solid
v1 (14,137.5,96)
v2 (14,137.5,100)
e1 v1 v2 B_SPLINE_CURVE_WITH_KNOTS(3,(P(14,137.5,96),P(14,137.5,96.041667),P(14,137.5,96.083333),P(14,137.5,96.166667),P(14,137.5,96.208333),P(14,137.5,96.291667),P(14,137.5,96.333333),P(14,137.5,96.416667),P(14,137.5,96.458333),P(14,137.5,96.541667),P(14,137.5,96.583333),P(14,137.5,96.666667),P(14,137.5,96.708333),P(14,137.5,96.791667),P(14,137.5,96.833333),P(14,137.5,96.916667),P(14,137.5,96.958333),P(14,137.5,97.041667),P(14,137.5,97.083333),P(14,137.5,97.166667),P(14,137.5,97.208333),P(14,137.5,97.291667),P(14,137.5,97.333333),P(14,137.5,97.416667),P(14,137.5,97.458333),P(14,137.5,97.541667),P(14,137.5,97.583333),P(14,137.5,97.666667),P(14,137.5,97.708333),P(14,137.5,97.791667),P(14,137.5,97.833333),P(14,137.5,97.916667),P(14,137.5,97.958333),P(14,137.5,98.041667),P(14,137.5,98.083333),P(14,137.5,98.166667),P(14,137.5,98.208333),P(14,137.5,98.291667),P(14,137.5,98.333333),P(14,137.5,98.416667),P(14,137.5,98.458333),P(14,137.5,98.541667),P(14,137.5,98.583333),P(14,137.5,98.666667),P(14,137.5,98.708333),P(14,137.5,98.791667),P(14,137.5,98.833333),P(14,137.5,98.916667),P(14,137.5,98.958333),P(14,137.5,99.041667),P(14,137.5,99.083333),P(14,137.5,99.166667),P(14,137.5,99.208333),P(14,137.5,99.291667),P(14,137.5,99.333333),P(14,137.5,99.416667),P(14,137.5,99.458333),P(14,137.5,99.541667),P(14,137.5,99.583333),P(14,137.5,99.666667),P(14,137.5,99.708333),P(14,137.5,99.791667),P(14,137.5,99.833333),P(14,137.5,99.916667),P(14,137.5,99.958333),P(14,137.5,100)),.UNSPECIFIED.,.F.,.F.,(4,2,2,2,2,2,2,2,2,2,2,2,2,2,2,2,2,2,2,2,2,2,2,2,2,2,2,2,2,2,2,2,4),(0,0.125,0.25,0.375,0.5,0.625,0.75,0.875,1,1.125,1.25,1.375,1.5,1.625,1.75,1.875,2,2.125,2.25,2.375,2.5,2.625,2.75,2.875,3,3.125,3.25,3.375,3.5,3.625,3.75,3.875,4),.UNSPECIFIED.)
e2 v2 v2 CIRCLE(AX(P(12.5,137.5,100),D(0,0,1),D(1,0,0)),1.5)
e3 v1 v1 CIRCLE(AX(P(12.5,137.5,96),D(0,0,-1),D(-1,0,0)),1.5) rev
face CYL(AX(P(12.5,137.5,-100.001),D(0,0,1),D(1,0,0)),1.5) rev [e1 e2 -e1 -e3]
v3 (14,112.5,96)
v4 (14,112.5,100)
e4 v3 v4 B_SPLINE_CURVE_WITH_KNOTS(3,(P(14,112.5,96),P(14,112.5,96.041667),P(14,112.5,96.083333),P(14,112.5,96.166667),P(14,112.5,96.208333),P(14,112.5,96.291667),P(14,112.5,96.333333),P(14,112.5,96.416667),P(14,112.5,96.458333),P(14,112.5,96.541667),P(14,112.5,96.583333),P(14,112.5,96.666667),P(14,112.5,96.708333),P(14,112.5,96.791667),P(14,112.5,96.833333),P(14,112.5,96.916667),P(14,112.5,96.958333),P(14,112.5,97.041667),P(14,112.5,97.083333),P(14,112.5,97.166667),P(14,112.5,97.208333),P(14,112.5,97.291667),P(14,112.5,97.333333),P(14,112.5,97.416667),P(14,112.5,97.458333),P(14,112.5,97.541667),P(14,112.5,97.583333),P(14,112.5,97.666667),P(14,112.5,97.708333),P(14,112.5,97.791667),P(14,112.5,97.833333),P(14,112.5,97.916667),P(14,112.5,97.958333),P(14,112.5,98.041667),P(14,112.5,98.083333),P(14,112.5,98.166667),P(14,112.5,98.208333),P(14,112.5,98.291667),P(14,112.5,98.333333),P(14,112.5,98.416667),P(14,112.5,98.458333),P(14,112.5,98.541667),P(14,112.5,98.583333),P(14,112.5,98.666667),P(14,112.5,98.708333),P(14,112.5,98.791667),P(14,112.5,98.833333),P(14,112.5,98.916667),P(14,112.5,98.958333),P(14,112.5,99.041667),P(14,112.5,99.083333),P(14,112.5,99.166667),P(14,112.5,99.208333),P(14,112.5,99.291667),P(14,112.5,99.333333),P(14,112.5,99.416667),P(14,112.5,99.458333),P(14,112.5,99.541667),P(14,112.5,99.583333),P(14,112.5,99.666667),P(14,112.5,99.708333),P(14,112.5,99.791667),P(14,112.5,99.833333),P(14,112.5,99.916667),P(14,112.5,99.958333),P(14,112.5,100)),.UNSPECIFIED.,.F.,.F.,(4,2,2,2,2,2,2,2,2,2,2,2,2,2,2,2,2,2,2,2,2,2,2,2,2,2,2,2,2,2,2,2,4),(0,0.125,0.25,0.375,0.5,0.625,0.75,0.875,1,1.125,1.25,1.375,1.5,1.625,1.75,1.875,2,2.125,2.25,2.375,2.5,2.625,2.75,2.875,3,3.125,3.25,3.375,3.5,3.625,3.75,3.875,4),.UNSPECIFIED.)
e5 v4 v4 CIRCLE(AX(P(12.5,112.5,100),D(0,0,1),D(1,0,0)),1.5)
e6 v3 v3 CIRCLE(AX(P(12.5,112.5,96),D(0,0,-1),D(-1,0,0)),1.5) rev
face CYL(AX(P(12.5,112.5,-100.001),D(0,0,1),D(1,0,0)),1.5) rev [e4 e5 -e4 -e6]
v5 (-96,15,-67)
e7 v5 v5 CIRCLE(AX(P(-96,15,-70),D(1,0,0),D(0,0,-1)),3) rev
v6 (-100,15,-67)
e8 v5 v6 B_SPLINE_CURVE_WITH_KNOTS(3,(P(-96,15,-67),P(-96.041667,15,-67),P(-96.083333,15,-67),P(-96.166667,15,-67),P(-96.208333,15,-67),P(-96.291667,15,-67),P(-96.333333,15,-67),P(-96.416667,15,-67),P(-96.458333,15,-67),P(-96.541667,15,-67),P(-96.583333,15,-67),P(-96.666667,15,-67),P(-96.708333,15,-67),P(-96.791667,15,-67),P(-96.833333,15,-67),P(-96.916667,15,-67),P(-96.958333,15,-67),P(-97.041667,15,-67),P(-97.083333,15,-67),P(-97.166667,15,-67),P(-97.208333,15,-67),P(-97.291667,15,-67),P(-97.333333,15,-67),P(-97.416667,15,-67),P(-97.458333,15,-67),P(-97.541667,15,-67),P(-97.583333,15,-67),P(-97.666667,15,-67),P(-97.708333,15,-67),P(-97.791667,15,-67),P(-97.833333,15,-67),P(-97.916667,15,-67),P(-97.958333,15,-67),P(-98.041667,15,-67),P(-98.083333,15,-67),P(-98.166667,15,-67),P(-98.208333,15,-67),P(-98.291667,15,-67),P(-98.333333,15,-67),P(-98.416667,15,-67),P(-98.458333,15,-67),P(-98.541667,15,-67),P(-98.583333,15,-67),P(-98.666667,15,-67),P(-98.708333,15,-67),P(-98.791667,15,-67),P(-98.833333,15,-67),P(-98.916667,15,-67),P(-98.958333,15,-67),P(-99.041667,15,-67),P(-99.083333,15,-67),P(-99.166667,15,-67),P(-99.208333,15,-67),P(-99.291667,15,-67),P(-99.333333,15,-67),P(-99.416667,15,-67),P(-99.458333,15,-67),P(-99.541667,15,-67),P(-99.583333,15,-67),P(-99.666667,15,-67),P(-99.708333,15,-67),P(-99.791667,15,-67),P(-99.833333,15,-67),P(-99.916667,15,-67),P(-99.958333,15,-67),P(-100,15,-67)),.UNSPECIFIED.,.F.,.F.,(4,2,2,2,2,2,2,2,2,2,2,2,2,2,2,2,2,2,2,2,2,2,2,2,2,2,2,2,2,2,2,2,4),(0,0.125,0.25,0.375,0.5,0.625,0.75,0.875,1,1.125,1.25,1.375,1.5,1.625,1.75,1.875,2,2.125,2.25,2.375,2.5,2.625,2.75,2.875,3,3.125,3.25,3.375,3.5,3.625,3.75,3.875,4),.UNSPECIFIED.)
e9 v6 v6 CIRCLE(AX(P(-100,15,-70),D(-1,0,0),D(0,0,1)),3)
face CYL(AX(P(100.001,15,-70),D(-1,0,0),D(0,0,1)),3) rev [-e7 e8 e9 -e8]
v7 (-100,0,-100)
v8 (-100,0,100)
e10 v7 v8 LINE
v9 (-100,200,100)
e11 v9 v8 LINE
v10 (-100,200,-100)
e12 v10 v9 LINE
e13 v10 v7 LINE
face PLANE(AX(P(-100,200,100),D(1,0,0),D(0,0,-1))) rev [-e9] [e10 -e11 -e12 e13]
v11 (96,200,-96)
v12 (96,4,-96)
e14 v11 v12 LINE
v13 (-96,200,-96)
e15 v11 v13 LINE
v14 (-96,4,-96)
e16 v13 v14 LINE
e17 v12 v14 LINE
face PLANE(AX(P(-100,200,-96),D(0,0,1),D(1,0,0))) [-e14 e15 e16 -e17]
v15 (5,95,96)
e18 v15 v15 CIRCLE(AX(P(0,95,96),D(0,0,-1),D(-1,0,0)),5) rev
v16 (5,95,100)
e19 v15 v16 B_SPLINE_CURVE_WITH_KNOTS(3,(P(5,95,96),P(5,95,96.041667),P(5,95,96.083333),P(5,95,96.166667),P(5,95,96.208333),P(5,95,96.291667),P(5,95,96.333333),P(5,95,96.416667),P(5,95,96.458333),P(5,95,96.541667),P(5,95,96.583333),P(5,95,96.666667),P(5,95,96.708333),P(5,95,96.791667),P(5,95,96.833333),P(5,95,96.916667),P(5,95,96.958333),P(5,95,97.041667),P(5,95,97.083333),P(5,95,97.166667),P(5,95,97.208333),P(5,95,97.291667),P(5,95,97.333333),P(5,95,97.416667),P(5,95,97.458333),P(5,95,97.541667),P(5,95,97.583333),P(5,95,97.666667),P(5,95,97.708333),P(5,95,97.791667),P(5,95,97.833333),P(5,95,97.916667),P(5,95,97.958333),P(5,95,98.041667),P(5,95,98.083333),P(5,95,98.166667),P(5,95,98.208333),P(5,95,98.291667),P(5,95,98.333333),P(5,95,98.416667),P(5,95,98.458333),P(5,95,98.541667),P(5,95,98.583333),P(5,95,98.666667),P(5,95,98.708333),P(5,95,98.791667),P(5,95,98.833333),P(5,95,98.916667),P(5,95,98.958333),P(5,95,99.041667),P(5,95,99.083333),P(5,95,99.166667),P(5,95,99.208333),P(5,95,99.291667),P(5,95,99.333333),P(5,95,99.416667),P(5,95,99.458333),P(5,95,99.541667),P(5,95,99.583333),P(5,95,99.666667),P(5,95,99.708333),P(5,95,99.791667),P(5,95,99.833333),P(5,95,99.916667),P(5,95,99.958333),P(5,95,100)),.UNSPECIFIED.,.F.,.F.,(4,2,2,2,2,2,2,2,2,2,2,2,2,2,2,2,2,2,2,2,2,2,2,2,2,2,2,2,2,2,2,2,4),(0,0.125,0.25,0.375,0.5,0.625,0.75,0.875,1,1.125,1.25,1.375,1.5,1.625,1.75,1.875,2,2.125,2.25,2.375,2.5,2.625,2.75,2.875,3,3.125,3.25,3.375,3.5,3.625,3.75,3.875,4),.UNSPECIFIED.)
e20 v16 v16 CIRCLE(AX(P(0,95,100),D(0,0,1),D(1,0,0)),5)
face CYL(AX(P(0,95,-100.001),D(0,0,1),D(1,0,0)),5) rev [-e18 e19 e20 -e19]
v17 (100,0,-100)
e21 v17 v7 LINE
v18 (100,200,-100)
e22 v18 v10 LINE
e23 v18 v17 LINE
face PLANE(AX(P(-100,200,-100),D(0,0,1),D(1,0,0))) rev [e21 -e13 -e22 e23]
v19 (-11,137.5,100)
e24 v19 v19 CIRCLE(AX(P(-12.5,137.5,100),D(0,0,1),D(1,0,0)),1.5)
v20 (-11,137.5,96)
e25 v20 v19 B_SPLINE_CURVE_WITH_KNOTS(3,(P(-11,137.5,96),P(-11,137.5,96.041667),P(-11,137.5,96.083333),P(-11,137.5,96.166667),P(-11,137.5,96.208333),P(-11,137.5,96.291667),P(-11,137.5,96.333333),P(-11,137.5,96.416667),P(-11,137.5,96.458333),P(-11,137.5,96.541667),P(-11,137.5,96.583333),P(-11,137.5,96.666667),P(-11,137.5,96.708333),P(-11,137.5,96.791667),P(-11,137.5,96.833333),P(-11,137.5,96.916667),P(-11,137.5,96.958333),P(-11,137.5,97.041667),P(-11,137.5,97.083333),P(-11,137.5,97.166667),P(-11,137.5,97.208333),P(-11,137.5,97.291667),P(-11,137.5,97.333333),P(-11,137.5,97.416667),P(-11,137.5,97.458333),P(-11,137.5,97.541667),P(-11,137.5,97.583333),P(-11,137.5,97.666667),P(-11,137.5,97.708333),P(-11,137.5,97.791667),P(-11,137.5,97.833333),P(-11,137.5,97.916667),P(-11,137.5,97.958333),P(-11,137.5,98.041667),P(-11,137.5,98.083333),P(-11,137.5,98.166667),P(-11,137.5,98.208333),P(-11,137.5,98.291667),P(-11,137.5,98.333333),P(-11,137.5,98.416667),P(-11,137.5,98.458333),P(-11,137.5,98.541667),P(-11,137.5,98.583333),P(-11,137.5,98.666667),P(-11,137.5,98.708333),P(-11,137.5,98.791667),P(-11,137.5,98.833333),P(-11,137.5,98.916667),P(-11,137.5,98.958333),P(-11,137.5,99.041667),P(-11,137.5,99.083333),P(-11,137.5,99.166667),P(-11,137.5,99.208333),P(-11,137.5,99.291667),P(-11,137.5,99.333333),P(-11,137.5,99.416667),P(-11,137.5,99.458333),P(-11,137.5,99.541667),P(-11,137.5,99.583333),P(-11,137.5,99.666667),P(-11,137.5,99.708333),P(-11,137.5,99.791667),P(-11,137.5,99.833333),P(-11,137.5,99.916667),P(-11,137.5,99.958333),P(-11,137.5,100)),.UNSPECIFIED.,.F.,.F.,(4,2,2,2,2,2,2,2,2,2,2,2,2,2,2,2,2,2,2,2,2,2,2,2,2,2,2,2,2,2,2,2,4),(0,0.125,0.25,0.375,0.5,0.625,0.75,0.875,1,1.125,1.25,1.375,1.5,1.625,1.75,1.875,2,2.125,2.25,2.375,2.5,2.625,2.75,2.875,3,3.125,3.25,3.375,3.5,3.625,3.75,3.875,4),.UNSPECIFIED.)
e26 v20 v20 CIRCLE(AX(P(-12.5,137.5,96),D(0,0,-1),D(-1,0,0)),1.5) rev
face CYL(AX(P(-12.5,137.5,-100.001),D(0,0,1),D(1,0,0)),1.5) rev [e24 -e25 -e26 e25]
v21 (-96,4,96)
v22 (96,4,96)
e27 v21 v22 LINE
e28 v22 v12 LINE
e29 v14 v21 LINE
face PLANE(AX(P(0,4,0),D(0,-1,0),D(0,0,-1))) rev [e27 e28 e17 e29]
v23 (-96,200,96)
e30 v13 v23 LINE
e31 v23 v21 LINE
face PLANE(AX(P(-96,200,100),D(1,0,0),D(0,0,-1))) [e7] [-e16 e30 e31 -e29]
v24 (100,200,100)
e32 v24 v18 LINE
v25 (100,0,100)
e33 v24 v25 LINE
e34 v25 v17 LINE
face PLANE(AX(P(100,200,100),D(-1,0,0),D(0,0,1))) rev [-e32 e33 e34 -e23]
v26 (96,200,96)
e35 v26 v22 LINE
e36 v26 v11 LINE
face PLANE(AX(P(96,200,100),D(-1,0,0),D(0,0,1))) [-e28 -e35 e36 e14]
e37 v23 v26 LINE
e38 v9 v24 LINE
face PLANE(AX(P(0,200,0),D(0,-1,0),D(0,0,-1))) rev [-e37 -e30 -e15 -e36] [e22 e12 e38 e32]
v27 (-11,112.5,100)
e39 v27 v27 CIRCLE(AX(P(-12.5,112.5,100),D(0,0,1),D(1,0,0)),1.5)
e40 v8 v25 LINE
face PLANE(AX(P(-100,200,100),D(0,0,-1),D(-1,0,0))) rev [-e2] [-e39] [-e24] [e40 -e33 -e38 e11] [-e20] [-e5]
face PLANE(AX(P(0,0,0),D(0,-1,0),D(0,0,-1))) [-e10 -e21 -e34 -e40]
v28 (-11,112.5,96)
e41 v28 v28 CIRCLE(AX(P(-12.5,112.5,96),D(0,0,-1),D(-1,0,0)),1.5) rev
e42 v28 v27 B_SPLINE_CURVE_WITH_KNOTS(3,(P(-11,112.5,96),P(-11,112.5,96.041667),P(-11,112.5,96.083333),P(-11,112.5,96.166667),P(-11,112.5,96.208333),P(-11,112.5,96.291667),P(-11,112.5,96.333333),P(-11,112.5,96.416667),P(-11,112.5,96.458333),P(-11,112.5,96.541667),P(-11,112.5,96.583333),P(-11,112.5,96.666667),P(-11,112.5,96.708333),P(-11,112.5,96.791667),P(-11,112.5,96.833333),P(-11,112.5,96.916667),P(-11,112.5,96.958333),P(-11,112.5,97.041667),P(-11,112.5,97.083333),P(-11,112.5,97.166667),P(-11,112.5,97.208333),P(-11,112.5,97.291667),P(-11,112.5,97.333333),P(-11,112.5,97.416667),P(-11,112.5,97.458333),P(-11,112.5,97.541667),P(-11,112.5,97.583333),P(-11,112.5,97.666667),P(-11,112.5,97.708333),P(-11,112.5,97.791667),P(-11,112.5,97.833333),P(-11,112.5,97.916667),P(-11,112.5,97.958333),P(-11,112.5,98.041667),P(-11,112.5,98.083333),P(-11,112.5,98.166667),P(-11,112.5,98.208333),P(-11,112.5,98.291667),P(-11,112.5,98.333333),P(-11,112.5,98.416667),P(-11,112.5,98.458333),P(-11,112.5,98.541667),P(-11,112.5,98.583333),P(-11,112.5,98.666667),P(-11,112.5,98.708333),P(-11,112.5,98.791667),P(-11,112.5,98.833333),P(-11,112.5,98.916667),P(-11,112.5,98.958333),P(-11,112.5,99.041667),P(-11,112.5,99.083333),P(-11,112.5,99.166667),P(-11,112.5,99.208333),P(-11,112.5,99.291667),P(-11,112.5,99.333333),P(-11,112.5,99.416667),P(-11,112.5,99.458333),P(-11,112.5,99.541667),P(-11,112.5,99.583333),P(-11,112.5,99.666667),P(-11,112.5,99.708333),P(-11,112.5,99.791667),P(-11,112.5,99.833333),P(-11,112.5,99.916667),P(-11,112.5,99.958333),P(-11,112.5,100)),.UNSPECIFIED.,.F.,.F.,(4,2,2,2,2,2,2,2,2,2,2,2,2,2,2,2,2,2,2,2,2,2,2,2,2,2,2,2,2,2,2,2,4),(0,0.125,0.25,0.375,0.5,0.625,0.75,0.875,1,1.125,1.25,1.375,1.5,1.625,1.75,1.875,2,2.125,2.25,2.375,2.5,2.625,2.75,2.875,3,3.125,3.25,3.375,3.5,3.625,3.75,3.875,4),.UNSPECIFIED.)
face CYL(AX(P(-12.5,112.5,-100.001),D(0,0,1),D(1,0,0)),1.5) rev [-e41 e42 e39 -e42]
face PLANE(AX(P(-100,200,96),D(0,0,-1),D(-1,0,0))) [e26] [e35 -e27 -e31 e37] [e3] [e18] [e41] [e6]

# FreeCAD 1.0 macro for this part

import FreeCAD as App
import Part
import Sketcher

V = App.Vector


def faces_at(feature, points):
    """Names of the faces that lie closest to the given points."""
    faces = feature.Shape.Faces
    near = lambda p: min(range(len(faces)), key=lambda i: faces[i].distToShape(Part.Vertex(*p))[0])
    return sorted({f"Face{near(p) + 1}" for p in points})

doc = App.newDocument("Part")
body = doc.addObject("PartDesign::Body", "Body")

# Sketch on XZ plane
sketch1 = body.newObject("Sketcher::SketchObject", "Sketch")
sketch1.AttachmentSupport = (doc.getObject("XZ_Plane"), [""])
sketch1.MapMode = "FlatFace"
sketch1.addGeometry([
    Part.LineSegment(V(-100, -100, 0), V(-100, 100, 0)),
    Part.LineSegment(V(-100, 100, 0), V(100, 100, 0)),
    Part.LineSegment(V(100, 100, 0), V(100, -100, 0)),
    Part.LineSegment(V(100, -100, 0), V(-100, -100, 0)),
], False)
sketch1.addConstraint([
    Sketcher.Constraint("Coincident", 0, 2, 1, 1),
    Sketcher.Constraint("Coincident", 1, 2, 2, 1),
    Sketcher.Constraint("Coincident", 2, 2, 3, 1),
    Sketcher.Constraint("Coincident", 3, 2, 0, 1),
    Sketcher.Constraint("Vertical", 0),
    Sketcher.Constraint("Horizontal", 1),
    Sketcher.Constraint("Vertical", 2),
    Sketcher.Constraint("Horizontal", 3),
    Sketcher.Constraint("Symmetric", 0, 2, 2, 2, -1, 1),
    Sketcher.Constraint("Equal", 3, 0),
    Sketcher.Constraint("DistanceX", 1, 1, 1, 2, 200.0),
])
pad1 = body.newObject("PartDesign::Pad", "Pad")
pad1.Profile = sketch1
pad1.Length = 200
pad1.Reversed = True
doc.recompute()

thickness = body.newObject("PartDesign::Thickness", "Thickness")
thickness.Base = (pad1, faces_at(pad1, [(0, 200, 0)]))
thickness.Value = 4
thickness.Reversed = True
thickness.Join = "Intersection"

# Sketch on XY plane
sketch2 = body.newObject("Sketcher::SketchObject", "Sketch001")
sketch2.AttachmentSupport = (doc.getObject("XY_Plane"), [""])
sketch2.MapMode = "FlatFace"
sketch2.AttachmentOffset = App.Placement(V(0, 0, 100), App.Rotation())
sketch2.addGeometry(Part.Circle(V(-12.5, 137.5, 0), V(0, 0, 1), 1.5), False)
sketch2.addConstraint([
    Sketcher.Constraint("Diameter", 0, 3.0),
    Sketcher.Constraint("DistanceX", 0, 3, -1, 1, 12.5),
    Sketcher.Constraint("DistanceY", -1, 1, 0, 3, 137.5),
])
pocket1 = body.newObject("PartDesign::Pocket", "Pocket")
pocket1.Profile = sketch2
pocket1.Type = "UpToFirst"

# Sketch on XY plane
sketch3 = body.newObject("Sketcher::SketchObject", "Sketch002")
sketch3.AttachmentSupport = (doc.getObject("XY_Plane"), [""])
sketch3.MapMode = "FlatFace"
sketch3.AttachmentOffset = App.Placement(V(0, 0, 100), App.Rotation())
sketch3.addGeometry(Part.Circle(V(12.5, 137.5, 0), V(0, 0, 1), 1.5), False)
sketch3.addConstraint([
    Sketcher.Constraint("Diameter", 0, 3.0),
    Sketcher.Constraint("DistanceX", -1, 1, 0, 3, 12.5),
    Sketcher.Constraint("DistanceY", -1, 1, 0, 3, 137.5),
])
pocket2 = body.newObject("PartDesign::Pocket", "Pocket001")
pocket2.Profile = sketch3
pocket2.Type = "UpToFirst"

# Sketch on XY plane
sketch4 = body.newObject("Sketcher::SketchObject", "Sketch003")
sketch4.AttachmentSupport = (doc.getObject("XY_Plane"), [""])
sketch4.MapMode = "FlatFace"
sketch4.AttachmentOffset = App.Placement(V(0, 0, 100), App.Rotation())
sketch4.addGeometry(Part.Circle(V(12.5, 112.5, 0), V(0, 0, 1), 1.5), False)
sketch4.addConstraint([
    Sketcher.Constraint("Diameter", 0, 3.0),
    Sketcher.Constraint("DistanceX", -1, 1, 0, 3, 12.5),
    Sketcher.Constraint("DistanceY", -1, 1, 0, 3, 112.5),
])
pocket3 = body.newObject("PartDesign::Pocket", "Pocket002")
pocket3.Profile = sketch4
pocket3.Type = "UpToFirst"

# Sketch on XY plane
sketch5 = body.newObject("Sketcher::SketchObject", "Sketch004")
sketch5.AttachmentSupport = (doc.getObject("XY_Plane"), [""])
sketch5.MapMode = "FlatFace"
sketch5.AttachmentOffset = App.Placement(V(0, 0, 100), App.Rotation())
sketch5.addGeometry(Part.Circle(V(-12.5, 112.5, 0), V(0, 0, 1), 1.5), False)
sketch5.addConstraint([
    Sketcher.Constraint("Diameter", 0, 3.0),
    Sketcher.Constraint("DistanceX", 0, 3, -1, 1, 12.5),
    Sketcher.Constraint("DistanceY", -1, 1, 0, 3, 112.5),
])
pocket4 = body.newObject("PartDesign::Pocket", "Pocket003")
pocket4.Profile = sketch5
pocket4.Type = "UpToFirst"

# Sketch on XY plane
sketch6 = body.newObject("Sketcher::SketchObject", "Sketch005")
sketch6.AttachmentSupport = (doc.getObject("XY_Plane"), [""])
sketch6.MapMode = "FlatFace"
sketch6.AttachmentOffset = App.Placement(V(0, 0, 100), App.Rotation())
sketch6.addGeometry(Part.Circle(V(0, 95, 0), V(0, 0, 1), 5), False)
sketch6.addConstraint([
    Sketcher.Constraint("PointOnObject", 0, 3, -2),
    Sketcher.Constraint("Diameter", 0, 10.0),
    Sketcher.Constraint("DistanceY", -1, 1, 0, 3, 95.0),
])
pocket5 = body.newObject("PartDesign::Pocket", "Pocket004")
pocket5.Profile = sketch6
pocket5.Type = "UpToFirst"

# Sketch on YZ plane
sketch7 = body.newObject("Sketcher::SketchObject", "Sketch006")
sketch7.AttachmentSupport = (doc.getObject("YZ_Plane"), [""])
sketch7.MapMode = "FlatFace"
sketch7.AttachmentOffset = App.Placement(V(0, 0, -100), App.Rotation())
sketch7.addGeometry(Part.Circle(V(15, -70, 0), V(0, 0, 1), 3), False)
sketch7.addConstraint([
    Sketcher.Constraint("Diameter", 0, 6.0),
    Sketcher.Constraint("DistanceX", -1, 1, 0, 3, 15.0),
    Sketcher.Constraint("DistanceY", 0, 3, -1, 1, 70.0),
])
pocket6 = body.newObject("PartDesign::Pocket", "Pocket005")
pocket6.Profile = sketch7
pocket6.Type = "UpToFirst"
pocket6.Reversed = True

doc.recompute()
